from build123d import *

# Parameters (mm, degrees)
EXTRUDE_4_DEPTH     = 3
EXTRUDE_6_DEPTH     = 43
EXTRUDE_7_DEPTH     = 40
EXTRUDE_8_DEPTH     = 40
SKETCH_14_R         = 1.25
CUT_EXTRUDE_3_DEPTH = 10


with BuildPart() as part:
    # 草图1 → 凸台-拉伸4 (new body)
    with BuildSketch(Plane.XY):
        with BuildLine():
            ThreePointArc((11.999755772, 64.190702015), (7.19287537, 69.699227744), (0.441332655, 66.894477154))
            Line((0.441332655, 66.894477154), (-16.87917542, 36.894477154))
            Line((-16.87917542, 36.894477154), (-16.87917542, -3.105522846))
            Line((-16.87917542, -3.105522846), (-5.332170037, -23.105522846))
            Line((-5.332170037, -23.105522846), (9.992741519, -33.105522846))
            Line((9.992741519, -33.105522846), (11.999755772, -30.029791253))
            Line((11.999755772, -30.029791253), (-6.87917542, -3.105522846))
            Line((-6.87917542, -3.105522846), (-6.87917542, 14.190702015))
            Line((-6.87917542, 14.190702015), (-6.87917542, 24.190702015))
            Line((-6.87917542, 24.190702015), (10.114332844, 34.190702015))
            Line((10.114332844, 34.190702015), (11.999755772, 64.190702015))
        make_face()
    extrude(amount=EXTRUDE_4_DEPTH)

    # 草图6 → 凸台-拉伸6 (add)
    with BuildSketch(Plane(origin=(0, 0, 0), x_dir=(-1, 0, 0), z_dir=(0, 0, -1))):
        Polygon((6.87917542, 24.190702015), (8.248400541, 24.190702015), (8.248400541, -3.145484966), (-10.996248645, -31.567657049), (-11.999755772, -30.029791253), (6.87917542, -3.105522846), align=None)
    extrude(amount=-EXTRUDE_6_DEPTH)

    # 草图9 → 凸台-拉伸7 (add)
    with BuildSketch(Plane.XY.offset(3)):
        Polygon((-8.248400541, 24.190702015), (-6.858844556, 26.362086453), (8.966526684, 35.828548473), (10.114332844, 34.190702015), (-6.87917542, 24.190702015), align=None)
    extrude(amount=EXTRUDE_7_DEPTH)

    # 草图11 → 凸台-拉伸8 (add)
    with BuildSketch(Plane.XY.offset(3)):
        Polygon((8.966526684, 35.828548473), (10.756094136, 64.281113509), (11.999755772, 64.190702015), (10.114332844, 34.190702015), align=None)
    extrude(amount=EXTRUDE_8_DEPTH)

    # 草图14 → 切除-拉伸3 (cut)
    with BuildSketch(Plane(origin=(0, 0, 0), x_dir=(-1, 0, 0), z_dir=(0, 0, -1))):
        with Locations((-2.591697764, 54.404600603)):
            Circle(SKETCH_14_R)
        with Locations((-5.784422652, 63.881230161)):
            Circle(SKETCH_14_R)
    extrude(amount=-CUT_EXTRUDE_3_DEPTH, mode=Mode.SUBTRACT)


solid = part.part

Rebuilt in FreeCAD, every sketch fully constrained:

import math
import FreeCAD as App
import Part
import Sketcher

V = App.Vector
Q = App.Units.Quantity

doc = App.newDocument("Part")
body = doc.addObject("PartDesign::Body", "Body")

# Sketch on XY plane
sketch1 = body.newObject("Sketcher::SketchObject", "Sketch")
sketch1.AttachmentSupport = (doc.getObject("XY_Plane"), [""])
sketch1.MapMode = "FlatFace"
sketch1.addGeometry([
    Part.ArcOfCircle(Part.Circle(V(5.8, 63.6, 0), V(0, 0, 1), 6.3), math.radians(5), math.radians(148)),  # 0
    Part.LineSegment(V(0.4, 66.9, 0), V(-16.9, 36.9, 0)),  # 1
    Part.LineSegment(V(-16.9, 36.9, 0), V(-16.9, -3.1, 0)),  # 2
    Part.LineSegment(V(-16.9, -3.1, 0), V(-5.3, -23.1, 0)),  # 3
    Part.LineSegment(V(-5.3, -23.1, 0), V(10, -33.1, 0)),  # 4
    Part.LineSegment(V(10, -33.1, 0), V(12, -30, 0)),  # 5
    Part.LineSegment(V(12, -30, 0), V(-6.9, -3.1, 0)),  # 6
    Part.LineSegment(V(-6.9, -3.1, 0), V(-6.9, 24.2, 0)),  # 7
    Part.LineSegment(V(-6.9, 24.2, 0), V(10.1, 34.2, 0)),  # 8
    Part.LineSegment(V(10.1, 34.2, 0), V(12, 64.2, 0)),  # 9
], False)
sketch1.addConstraint([
    Sketcher.Constraint("Coincident", 0, 2, 1, 1),
    Sketcher.Constraint("Coincident", 1, 2, 2, 1),
    Sketcher.Constraint("Coincident", 2, 2, 3, 1),
    Sketcher.Constraint("Coincident", 3, 2, 4, 1),
    Sketcher.Constraint("Coincident", 4, 2, 5, 1),
    Sketcher.Constraint("Coincident", 5, 2, 6, 1),
    Sketcher.Constraint("Coincident", 6, 2, 7, 1),
    Sketcher.Constraint("Coincident", 7, 2, 8, 1),
    Sketcher.Constraint("Coincident", 8, 2, 9, 1),
    Sketcher.Constraint("Coincident", 9, 2, 0, 1),
    Sketcher.Constraint("Vertical", 2),
    Sketcher.Constraint("Vertical", 7),
    Sketcher.Constraint("Perpendicular", 4, 5),
    Sketcher.Constraint("Horizontal", 2, 2, 6, 2),
    Sketcher.Constraint("Vertical", 5, 2, 9, 2),
    Sketcher.Constraint("DistanceY", 2, 2, 2, 1, Q("40 mm")),
    Sketcher.Constraint("Angle", 1, Q("-120 deg")),
    Sketcher.Constraint("Angle", 3, Q("-60 deg")),
    Sketcher.Constraint("DistanceY", 1, 2, 0, 2, Q("30 mm")),
    Sketcher.Constraint("DistanceY", 3, 2, 2, 2, Q("20 mm")),
    Sketcher.Constraint("DistanceY", 4, 2, 3, 2, Q("10 mm")),
    Sketcher.Constraint("DistanceX", 2, 2, 6, 2, Q("10 mm")),
    Sketcher.Constraint("DistanceY", 7, 2, 8, 2, Q("10 mm")),
    Sketcher.Constraint("DistanceY", 8, 2, 9, 2, Q("30 mm")),
    Sketcher.Constraint("Radius", 0, Q("6.260465 mm")),
    Sketcher.Constraint("DistanceX", 0, 2, 8, 2, Q("9.673 mm")),
    Sketcher.Constraint("Distance", 9, Q("30.059189 mm")),
    Sketcher.Constraint("DistanceY", 7, 1, 7, 2, Q("27.296225 mm")),
    Sketcher.Constraint("DistanceX", 3, 2, -1, 1, Q("5.33217 mm")),
    Sketcher.Constraint("DistanceX", -1, 1, 4, 2, Q("9.992742 mm")),
    Sketcher.Constraint("DistanceY", 5, 2, -1, 1, Q("30.029791 mm")),
])
pad1 = body.newObject("PartDesign::Pad", "Pad")
pad1.Profile = sketch1
pad1.Length = 3

# Sketch on XY plane
sketch2 = body.newObject("Sketcher::SketchObject", "Sketch001")
sketch2.AttachmentSupport = (doc.getObject("XY_Plane"), [""])
sketch2.MapMode = "FlatFace"
sketch2.addGeometry([
    Part.LineSegment(V(-8.2, 24.2, 0), V(-6.9, 24.2, 0)),  # 0
    Part.LineSegment(V(-6.9, 24.2, 0), V(-6.9, -3.1, 0)),  # 1
    Part.LineSegment(V(-6.9, -3.1, 0), V(12, -30, 0)),  # 2
    Part.LineSegment(V(12, -30, 0), V(11, -31.6, 0)),  # 3
    Part.LineSegment(V(11, -31.6, 0), V(-8.2, -3.1, 0)),  # 4
    Part.LineSegment(V(-8.2, -3.1, 0), V(-8.2, 24.2, 0)),  # 5
], False)
sketch2.addConstraint([
    Sketcher.Constraint("Coincident", 0, 2, 1, 1),
    Sketcher.Constraint("Coincident", 1, 2, 2, 1),
    Sketcher.Constraint("Coincident", 2, 2, 3, 1),
    Sketcher.Constraint("Coincident", 3, 2, 4, 1),
    Sketcher.Constraint("Coincident", 4, 2, 5, 1),
    Sketcher.Constraint("Coincident", 5, 2, 0, 1),
    Sketcher.Constraint("Horizontal", 0),
    Sketcher.Constraint("Vertical", 1),
    Sketcher.Constraint("Vertical", 5),
    Sketcher.Constraint("DistanceX", 4, 2, -1, 1, Q("8.248401 mm")),
    Sketcher.Constraint("DistanceX", 0, 1, 0, 2, Q("1.369225 mm")),
    Sketcher.Constraint("DistanceY", 1, 2, 1, 1, Q("27.296225 mm")),
    Sketcher.Constraint("DistanceY", 5, 1, 5, 2, Q("27.336187 mm")),
    Sketcher.Constraint("DistanceY", 2, 2, -1, 1, Q("30.029791 mm")),
    Sketcher.Constraint("DistanceX", -1, 1, 3, 2, Q("10.996249 mm")),
    Sketcher.Constraint("DistanceX", 1, 2, 2, 2, Q("18.878931 mm")),
    Sketcher.Constraint("DistanceY", 2, 2, 1, 2, Q("26.924268 mm")),
    Sketcher.Constraint("DistanceY", 3, 2, 0, 2, Q("55.758359 mm")),
])
pad2 = body.newObject("PartDesign::Pad", "Pad001")
pad2.Profile = sketch2
pad2.Length = 43

# Sketch on XY plane
sketch3 = body.newObject("Sketcher::SketchObject", "Sketch002")
sketch3.AttachmentSupport = (doc.getObject("XY_Plane"), [""])
sketch3.MapMode = "FlatFace"
sketch3.AttachmentOffset = App.Placement(V(0, 0, 3), App.Rotation())
sketch3.addGeometry([
    Part.LineSegment(V(-6.9, 26.4, 0), V(-8.2, 24.2, 0)),  # 0
    Part.LineSegment(V(-8.2, 24.2, 0), V(-6.9, 24.2, 0)),  # 1
    Part.LineSegment(V(-6.9, 24.2, 0), V(10.1, 34.2, 0)),  # 2
    Part.LineSegment(V(10.1, 34.2, 0), V(9, 35.8, 0)),  # 3
    Part.LineSegment(V(9, 35.8, 0), V(-6.9, 26.4, 0)),  # 4
], False)
sketch3.addConstraint([
    Sketcher.Constraint("Coincident", 0, 2, 1, 1),
    Sketcher.Constraint("Coincident", 1, 2, 2, 1),
    Sketcher.Constraint("Coincident", 2, 2, 3, 1),
    Sketcher.Constraint("Coincident", 3, 2, 4, 1),
    Sketcher.Constraint("Coincident", 4, 2, 0, 1),
    Sketcher.Constraint("Horizontal", 1),
    Sketcher.Constraint("Distance", 3, Q("2 mm")),
    Sketcher.Constraint("DistanceY", 1, 2, 2, 2, Q("10 mm")),
    Sketcher.Constraint("DistanceX", 0, 2, -1, 1, Q("8.248401 mm")),
    Sketcher.Constraint("Distance", 0, Q("2.57794 mm")),
    Sketcher.Constraint("DistanceX", 1, 1, 1, 2, Q("1.369225 mm")),
    Sketcher.Constraint("DistanceY", -1, 1, 3, 2, Q("35.828548 mm")),
    Sketcher.Constraint("DistanceX", 1, 2, 2, 2, Q("16.993508 mm")),
    Sketcher.Constraint("DistanceX", 1, 2, 4, 2, Q("0.020331 mm")),
    Sketcher.Constraint("DistanceX", 4, 2, 3, 2, Q("15.825371 mm")),
])
pad3 = body.newObject("PartDesign::Pad", "Pad002")
pad3.Profile = sketch3
pad3.Length = 40

# Sketch on XY plane
sketch4 = body.newObject("Sketcher::SketchObject", "Sketch003")
sketch4.AttachmentSupport = (doc.getObject("XY_Plane"), [""])
sketch4.MapMode = "FlatFace"
sketch4.AttachmentOffset = App.Placement(V(0, 0, 3), App.Rotation())
sketch4.addGeometry([
    Part.LineSegment(V(10.8, 64.3, 0), V(9, 35.8, 0)),
    Part.LineSegment(V(9, 35.8, 0), V(10.1, 34.2, 0)),
    Part.LineSegment(V(10.1, 34.2, 0), V(12, 64.2, 0)),
    Part.LineSegment(V(12, 64.2, 0), V(10.8, 64.3, 0)),
], False)
sketch4.addConstraint([
    Sketcher.Constraint("Coincident", 0, 2, 1, 1),
    Sketcher.Constraint("Coincident", 1, 2, 2, 1),
    Sketcher.Constraint("Coincident", 2, 2, 3, 1),
    Sketcher.Constraint("Coincident", 3, 2, 0, 1),
    Sketcher.Constraint("Distance", 1, Q("2 mm")),
    Sketcher.Constraint("DistanceY", 1, 2, 2, 2, Q("30 mm")),
    Sketcher.Constraint("Distance", 0, Q("28.508788 mm")),
    Sketcher.Constraint("Distance", 2, Q("30.059189 mm")),
    Sketcher.Constraint("DistanceY", -1, 1, 0, 2, Q("35.828548 mm")),
    Sketcher.Constraint("DistanceX", 0, 2, 2, 2, Q("3.033229 mm")),
    Sketcher.Constraint("DistanceX", 3, 2, 2, 2, Q("1.243662 mm")),
    Sketcher.Constraint("DistanceX", -1, 1, 0, 2, Q("8.966527 mm")),
])
pad4 = body.newObject("PartDesign::Pad", "Pad003")
pad4.Profile = sketch4
pad4.Length = 40

# Sketch on XY plane
sketch5 = body.newObject("Sketcher::SketchObject", "Sketch004")
sketch5.AttachmentSupport = (doc.getObject("XY_Plane"), [""])
sketch5.MapMode = "FlatFace"
sketch5.addGeometry([
    Part.Circle(V(2.6, 54.4, 0), V(0, 0, 1), 1.2),
    Part.Circle(V(5.8, 63.9, 0), V(0, 0, 1), 1.2),
], False)
sketch5.addConstraint([
    Sketcher.Constraint("Equal", 0, 1),
    Sketcher.Constraint("Diameter", 0, Q("2.5 mm")),
    Sketcher.Constraint("DistanceY", -1, 1, 0, 3, Q("54.404601 mm")),
    Sketcher.Constraint("DistanceY", -1, 1, 1, 3, Q("63.88123 mm")),
    Sketcher.Constraint("DistanceX", -1, 1, 0, 3, Q("2.591698 mm")),
    Sketcher.Constraint("DistanceX", -1, 1, 1, 3, Q("5.784423 mm")),
])
pocket1 = body.newObject("PartDesign::Pocket", "Pocket")
pocket1.Profile = sketch5
pocket1.Length = 10
pocket1.Reversed = True

doc.recompute()
